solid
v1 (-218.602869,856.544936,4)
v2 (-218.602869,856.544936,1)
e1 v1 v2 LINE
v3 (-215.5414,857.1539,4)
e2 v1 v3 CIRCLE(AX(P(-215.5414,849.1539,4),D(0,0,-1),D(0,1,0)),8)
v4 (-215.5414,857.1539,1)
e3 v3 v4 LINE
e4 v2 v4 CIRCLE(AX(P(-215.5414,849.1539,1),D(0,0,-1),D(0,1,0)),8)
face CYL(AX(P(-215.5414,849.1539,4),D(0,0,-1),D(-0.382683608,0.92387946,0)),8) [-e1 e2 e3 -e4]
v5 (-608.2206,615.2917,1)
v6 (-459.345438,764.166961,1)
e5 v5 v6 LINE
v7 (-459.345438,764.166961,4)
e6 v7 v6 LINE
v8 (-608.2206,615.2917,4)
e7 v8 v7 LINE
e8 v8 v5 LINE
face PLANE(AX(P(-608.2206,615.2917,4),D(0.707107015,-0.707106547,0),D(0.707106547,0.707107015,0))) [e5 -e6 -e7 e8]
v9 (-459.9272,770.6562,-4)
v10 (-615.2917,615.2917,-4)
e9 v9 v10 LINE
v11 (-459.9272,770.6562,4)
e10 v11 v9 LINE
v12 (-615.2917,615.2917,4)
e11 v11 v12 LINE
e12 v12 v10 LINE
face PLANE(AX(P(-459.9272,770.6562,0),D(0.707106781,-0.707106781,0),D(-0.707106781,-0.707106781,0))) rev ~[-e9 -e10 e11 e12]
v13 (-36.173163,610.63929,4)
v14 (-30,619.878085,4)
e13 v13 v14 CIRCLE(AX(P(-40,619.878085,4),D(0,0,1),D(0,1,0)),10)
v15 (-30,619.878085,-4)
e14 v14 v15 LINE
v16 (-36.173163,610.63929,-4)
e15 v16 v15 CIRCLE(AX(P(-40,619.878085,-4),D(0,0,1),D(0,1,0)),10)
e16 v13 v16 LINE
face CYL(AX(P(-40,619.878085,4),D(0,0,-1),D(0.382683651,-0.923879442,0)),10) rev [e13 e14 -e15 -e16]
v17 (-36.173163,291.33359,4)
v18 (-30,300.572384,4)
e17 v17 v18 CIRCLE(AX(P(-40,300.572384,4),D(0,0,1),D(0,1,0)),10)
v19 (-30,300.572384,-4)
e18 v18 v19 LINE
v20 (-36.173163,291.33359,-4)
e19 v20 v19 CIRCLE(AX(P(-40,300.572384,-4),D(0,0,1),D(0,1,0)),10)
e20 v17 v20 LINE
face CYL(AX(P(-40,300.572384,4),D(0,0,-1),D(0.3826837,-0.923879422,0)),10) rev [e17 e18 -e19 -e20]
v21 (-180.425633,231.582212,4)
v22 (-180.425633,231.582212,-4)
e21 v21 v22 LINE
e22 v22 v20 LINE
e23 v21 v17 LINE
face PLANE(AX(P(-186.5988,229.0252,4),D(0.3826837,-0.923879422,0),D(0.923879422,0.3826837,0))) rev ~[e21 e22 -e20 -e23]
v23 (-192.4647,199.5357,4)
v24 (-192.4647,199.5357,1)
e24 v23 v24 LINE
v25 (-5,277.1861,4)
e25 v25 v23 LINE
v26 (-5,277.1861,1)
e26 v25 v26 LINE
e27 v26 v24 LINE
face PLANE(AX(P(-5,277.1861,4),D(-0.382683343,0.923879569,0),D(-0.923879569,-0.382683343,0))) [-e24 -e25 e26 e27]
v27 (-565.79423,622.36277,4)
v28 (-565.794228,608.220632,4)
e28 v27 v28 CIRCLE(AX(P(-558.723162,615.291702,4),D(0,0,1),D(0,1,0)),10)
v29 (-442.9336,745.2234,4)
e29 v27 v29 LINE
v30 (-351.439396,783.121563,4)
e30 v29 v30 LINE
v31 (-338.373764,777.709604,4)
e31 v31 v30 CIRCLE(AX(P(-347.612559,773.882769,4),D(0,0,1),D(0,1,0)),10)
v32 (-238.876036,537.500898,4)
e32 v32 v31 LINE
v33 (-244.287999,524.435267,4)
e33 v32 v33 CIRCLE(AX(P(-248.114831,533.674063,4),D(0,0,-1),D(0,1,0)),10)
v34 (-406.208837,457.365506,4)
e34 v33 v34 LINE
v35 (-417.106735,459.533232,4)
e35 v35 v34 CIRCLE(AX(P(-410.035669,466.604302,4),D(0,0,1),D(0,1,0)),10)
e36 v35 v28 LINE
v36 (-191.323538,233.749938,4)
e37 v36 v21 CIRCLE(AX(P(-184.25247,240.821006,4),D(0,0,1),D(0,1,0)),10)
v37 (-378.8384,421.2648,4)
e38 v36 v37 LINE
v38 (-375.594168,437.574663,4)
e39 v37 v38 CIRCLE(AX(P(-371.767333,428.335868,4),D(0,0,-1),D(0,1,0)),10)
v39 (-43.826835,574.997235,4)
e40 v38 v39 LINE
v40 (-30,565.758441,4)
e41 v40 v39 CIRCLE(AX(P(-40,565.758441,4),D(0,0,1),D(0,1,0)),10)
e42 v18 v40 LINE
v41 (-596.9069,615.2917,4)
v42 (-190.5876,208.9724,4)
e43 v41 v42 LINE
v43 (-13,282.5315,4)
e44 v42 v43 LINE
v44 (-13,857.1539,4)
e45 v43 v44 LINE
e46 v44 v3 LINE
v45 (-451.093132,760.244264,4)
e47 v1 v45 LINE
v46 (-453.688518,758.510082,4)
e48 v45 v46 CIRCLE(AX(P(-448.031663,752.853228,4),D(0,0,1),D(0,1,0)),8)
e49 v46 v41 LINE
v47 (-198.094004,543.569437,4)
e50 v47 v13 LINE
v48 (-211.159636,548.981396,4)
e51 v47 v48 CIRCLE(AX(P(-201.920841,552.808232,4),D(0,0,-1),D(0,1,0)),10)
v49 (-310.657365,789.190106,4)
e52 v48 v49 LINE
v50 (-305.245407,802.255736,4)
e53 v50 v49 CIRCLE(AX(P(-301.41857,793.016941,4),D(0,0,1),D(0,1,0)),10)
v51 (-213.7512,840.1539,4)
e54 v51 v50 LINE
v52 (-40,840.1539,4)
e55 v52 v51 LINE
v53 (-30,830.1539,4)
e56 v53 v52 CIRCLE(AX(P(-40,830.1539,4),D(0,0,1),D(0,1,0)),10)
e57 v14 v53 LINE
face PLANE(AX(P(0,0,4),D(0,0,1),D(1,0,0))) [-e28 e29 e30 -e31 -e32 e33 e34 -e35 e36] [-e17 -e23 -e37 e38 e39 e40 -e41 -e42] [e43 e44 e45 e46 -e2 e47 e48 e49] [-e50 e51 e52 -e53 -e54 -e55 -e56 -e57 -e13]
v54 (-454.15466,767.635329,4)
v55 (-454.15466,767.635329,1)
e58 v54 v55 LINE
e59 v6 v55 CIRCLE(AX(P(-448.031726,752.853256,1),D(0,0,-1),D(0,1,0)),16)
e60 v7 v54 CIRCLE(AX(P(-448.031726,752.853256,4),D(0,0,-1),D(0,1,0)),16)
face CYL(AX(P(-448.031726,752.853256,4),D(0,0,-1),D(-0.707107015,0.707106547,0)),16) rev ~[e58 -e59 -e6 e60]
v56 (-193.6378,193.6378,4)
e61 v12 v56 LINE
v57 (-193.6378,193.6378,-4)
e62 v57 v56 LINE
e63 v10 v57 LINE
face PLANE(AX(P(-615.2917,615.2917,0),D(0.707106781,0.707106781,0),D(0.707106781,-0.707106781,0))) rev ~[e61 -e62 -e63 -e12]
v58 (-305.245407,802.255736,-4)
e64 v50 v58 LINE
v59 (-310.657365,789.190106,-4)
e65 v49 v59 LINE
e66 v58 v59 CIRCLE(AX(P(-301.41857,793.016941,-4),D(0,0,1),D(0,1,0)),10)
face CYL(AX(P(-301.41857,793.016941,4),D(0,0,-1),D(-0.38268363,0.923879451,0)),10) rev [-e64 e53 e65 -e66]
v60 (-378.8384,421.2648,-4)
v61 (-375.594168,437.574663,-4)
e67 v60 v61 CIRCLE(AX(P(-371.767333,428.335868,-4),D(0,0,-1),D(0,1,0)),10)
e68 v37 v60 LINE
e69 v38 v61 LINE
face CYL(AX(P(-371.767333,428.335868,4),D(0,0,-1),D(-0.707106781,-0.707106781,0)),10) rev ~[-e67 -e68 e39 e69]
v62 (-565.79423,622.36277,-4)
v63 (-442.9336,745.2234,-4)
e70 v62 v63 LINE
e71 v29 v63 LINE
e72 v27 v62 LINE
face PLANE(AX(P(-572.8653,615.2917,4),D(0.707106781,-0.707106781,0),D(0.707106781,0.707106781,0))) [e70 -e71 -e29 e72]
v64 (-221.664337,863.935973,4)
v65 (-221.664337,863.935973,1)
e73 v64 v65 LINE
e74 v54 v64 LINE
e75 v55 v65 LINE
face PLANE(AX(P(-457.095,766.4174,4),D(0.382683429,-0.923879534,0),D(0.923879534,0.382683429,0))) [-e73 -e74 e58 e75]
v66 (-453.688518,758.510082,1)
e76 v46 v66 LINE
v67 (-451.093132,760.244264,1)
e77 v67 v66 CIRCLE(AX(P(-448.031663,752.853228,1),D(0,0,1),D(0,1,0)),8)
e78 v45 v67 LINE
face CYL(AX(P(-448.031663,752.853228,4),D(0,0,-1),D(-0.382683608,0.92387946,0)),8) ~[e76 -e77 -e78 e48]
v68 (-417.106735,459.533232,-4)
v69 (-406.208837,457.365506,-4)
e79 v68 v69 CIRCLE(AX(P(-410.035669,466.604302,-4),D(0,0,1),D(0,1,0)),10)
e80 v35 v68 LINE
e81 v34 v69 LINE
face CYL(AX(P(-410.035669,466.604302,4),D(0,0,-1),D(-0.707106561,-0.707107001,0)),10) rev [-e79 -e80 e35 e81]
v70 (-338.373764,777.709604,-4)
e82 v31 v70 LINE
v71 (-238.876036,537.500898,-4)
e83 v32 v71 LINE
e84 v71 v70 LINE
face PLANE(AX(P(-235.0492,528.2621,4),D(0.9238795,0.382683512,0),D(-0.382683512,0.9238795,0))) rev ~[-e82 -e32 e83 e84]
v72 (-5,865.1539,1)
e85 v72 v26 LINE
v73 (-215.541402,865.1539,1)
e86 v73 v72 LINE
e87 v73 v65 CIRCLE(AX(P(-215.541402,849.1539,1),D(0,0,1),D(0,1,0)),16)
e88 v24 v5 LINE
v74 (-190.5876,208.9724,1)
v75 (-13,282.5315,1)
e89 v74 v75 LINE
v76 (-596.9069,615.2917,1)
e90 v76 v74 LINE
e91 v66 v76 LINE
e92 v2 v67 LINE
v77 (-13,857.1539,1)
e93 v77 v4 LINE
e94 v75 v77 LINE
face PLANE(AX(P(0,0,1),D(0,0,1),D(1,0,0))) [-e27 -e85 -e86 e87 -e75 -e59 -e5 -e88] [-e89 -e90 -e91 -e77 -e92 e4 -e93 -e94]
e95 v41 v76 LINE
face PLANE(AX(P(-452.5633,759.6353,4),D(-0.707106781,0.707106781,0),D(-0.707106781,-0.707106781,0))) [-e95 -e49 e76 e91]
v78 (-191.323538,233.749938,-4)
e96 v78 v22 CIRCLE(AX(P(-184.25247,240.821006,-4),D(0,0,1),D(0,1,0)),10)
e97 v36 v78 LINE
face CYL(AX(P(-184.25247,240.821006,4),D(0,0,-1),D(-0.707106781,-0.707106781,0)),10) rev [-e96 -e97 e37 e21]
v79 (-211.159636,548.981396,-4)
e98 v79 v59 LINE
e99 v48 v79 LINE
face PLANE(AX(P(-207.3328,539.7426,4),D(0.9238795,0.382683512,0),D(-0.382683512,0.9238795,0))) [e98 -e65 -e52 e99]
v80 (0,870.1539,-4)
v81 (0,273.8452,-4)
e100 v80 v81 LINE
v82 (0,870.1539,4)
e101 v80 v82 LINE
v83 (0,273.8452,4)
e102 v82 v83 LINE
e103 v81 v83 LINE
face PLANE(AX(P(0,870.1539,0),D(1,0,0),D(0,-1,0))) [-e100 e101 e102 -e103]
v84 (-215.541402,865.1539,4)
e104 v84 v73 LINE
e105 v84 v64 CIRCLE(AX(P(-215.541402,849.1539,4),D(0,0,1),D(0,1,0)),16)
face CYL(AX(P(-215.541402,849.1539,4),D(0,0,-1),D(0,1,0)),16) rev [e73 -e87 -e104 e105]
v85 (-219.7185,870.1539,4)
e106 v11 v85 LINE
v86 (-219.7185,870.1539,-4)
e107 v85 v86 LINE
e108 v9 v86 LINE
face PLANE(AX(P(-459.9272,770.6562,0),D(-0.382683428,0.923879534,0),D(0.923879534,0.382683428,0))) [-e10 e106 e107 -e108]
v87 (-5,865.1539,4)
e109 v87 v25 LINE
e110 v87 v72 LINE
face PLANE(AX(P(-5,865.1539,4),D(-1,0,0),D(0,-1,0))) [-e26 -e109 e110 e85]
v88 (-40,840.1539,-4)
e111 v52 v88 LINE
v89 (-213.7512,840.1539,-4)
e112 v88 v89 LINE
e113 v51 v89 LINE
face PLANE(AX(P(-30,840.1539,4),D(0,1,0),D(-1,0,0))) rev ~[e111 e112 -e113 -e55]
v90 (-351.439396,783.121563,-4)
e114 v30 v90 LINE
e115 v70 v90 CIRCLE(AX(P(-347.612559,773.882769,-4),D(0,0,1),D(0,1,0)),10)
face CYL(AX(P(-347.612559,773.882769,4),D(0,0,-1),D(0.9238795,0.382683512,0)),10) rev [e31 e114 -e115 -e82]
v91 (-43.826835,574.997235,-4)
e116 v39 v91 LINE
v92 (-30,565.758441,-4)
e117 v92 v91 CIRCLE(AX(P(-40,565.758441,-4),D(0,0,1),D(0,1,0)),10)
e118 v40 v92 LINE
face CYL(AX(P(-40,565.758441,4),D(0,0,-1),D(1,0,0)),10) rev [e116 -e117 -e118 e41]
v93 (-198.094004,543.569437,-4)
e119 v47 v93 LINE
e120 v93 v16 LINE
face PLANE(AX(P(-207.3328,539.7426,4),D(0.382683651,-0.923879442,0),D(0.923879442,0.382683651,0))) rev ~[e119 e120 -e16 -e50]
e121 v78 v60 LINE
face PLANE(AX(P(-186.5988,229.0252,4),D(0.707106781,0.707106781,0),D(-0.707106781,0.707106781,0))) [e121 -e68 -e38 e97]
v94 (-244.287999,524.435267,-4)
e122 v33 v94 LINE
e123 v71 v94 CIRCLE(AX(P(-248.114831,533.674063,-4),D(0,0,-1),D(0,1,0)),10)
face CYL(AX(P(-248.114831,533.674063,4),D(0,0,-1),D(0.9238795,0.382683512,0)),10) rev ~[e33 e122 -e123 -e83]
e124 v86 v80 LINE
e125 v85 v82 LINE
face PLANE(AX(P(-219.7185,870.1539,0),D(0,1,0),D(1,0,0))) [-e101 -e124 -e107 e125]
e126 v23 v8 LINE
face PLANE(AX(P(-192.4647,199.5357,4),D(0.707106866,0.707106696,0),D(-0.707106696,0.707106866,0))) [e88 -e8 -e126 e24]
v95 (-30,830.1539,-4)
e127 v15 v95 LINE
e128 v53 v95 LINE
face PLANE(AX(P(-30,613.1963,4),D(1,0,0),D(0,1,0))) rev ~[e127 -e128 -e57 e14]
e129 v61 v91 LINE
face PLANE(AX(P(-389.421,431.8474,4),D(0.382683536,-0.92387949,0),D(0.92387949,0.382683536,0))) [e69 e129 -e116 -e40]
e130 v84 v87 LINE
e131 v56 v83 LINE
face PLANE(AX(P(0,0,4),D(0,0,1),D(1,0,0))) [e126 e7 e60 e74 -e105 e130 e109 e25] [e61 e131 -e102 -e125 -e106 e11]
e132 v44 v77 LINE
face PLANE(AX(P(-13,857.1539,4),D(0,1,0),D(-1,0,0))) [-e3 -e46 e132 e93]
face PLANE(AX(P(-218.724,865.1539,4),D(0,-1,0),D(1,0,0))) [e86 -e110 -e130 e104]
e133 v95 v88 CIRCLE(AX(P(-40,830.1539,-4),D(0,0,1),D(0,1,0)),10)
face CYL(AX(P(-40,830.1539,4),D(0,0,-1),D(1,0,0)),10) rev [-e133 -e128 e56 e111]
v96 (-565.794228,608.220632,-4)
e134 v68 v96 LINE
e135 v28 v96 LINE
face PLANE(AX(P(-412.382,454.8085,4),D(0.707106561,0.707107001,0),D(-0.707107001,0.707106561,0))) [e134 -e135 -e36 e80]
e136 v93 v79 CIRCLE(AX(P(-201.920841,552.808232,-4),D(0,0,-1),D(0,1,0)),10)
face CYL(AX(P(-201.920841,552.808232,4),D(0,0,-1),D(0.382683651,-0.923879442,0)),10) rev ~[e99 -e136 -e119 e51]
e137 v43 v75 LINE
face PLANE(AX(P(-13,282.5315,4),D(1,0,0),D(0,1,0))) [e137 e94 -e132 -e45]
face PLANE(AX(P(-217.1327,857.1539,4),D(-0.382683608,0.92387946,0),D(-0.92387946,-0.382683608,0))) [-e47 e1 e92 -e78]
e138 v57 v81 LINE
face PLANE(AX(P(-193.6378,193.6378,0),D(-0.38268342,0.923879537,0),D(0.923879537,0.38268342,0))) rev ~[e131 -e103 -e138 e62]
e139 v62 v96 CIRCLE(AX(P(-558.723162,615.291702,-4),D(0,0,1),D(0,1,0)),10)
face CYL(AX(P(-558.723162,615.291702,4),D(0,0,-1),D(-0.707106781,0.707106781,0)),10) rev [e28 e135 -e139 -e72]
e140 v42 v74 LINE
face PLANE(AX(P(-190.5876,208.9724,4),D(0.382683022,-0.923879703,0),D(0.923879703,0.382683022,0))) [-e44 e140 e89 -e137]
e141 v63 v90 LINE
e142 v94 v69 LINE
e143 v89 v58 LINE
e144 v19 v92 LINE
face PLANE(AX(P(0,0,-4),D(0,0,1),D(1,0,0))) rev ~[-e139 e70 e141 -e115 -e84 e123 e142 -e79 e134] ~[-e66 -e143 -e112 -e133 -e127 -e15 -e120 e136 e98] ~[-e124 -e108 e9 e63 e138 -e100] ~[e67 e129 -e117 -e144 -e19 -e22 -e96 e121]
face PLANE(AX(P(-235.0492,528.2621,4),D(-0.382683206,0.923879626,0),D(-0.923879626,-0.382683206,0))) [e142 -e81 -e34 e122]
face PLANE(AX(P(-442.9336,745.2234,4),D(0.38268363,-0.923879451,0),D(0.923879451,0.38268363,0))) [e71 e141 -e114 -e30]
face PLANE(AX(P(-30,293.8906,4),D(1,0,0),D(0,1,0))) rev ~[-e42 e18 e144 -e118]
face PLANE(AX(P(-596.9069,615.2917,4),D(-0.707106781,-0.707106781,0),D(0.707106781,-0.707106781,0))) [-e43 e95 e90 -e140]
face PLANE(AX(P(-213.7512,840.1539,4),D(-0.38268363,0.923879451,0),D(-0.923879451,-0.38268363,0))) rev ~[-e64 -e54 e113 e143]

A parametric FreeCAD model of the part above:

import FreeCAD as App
import Part
import Sketcher

V = App.Vector
Q = App.Units.Quantity


def edges_at(feature, points):
    """Names of the edges that pass closest to the given points."""
    edges = feature.Shape.Edges
    near = lambda p: min(range(len(edges)), key=lambda i: edges[i].distToShape(Part.Vertex(*p))[0])
    return sorted({f"Edge{near(p) + 1}" for p in points})


def add_polygon(sketch, points):
    """Adds a closed chain of lines whose ends are joined by coincident constraints."""
    first, n = sketch.GeometryCount, len(points)
    for a, b in zip(points, points[1:] + points[:1]):
        sketch.addGeometry(Part.LineSegment(App.Vector(*a, 0), App.Vector(*b, 0)), False)
    for i in range(n):
        sketch.addConstraint(Sketcher.Constraint("Coincident", first + i, 2, first + (i + 1) % n, 1))

doc = App.newDocument("Part")
body = doc.addObject("PartDesign::Body", "Body")

# Sketch on XY plane
sketch1 = doc.addObject("Sketcher::SketchObject", "Sketch")
body.addObject(sketch1)
sketch1.AttachmentSupport = (doc.XY_Plane, [""])
sketch1.MapMode = "FlatFace"
add_polygon(sketch1, [(-615, 615), (-194, 194), (0, 274), (0, 870), (-220, 870), (-460, 771)])  # lines 0-5
sketch1.addConstraint(Sketcher.Constraint("Vertical", 2))
sketch1.addConstraint(Sketcher.Constraint("Horizontal", 3))
sketch1.addConstraint(Sketcher.Constraint("PointOnObject", 1, 2, -2))
sketch1.addConstraint(Sketcher.Constraint("Parallel", 1, 4))
sketch1.addConstraint(Sketcher.Constraint("Perpendicular", 0, 5))
sketch1.addConstraint(Sketcher.Constraint("Distance", 4, Q("260 mm")))
sketch1.addConstraint(Sketcher.Constraint("Angle", 0, Q("-45 deg")))
sketch1.addConstraint(Sketcher.Constraint("Angle", 1, Q("22.5 deg")))
sketch1.addConstraint(Sketcher.Constraint("Distance", 1, Q("209.592 mm")))
sketch1.addConstraint(Sketcher.Constraint("DistanceX", 3, 2, 3, 1, Q("219.7185 mm")))
sketch1.addConstraint(Sketcher.Constraint("DistanceY", 2, 1, 2, 2, Q("596.3087 mm")))
sketch1.addConstraint(Sketcher.Constraint("DistanceY", -1, 1, 2, 2, Q("870.154 mm")))
pad1 = doc.addObject("PartDesign::Pad", "Pad")
body.addObject(pad1)
pad1.Profile = sketch1
pad1.Length = 8
pad1.Midplane = True

# Sketch on XY plane
sketch2 = doc.addObject("Sketcher::SketchObject", "Sketch001")
body.addObject(sketch2)
sketch2.AttachmentSupport = (doc.XY_Plane, [""])
sketch2.MapMode = "FlatFace"
sketch2.AttachmentOffset = App.Placement(V(0, 0, 4), App.Rotation())
add_polygon(sketch2, [(-412, 455), (-235, 528), (-342, 787), (-443, 745), (-573, 615)])  # lines 0-4
add_polygon(sketch2, [(-314, 798), (-207, 540), (-30, 613), (-30, 840), (-214, 840)])  # lines 5-9
add_polygon(sketch2, [(-30, 581), (-389, 432), (-187, 229), (-30, 294)])  # lines 10-13
sketch2.addConstraint(Sketcher.Constraint("Vertical", 7))
sketch2.addConstraint(Sketcher.Constraint("Horizontal", 8))
sketch2.addConstraint(Sketcher.Constraint("Vertical", 13))
sketch2.addConstraint(Sketcher.Constraint("Perpendicular", 0, 1))
sketch2.addConstraint(Sketcher.Constraint("Perpendicular", 1, 2))
sketch2.addConstraint(Sketcher.Constraint("Perpendicular", 3, 4))
sketch2.addConstraint(Sketcher.Constraint("Perpendicular", 2, 5))
sketch2.addConstraint(Sketcher.Constraint("Perpendicular", 5, 6))
sketch2.addConstraint(Sketcher.Constraint("Parallel", 6, 9))
sketch2.addConstraint(Sketcher.Constraint("Parallel", 9, 10))
sketch2.addConstraint(Sketcher.Constraint("Parallel", 4, 11))
sketch2.addConstraint(Sketcher.Constraint("Parallel", 10, 12))
sketch2.addConstraint(Sketcher.Constraint("Vertical", 7, 2, 12, 2))
sketch2.addConstraint(Sketcher.Constraint("Equal", 1, 5))
sketch2.addConstraint(Sketcher.Constraint("Equal", 0, 6))
sketch2.addConstraint(Sketcher.Constraint("Equal", 2, 9))
sketch2.addConstraint(Sketcher.Constraint("Distance", 1, Q("280 mm")))
sketch2.addConstraint(Sketcher.Constraint("DistanceX", 6, 2, -1, 1, Q("30 mm")))
sketch2.addConstraint(Sketcher.Constraint("Angle", 3, Q("-135 deg")))
sketch2.addConstraint(Sketcher.Constraint("Angle", 0, Q("22.5 deg")))
sketch2.addConstraint(Sketcher.Constraint("DistanceY", 13, 1, 13, 2, Q("286.834 mm")))
sketch2.addConstraint(Sketcher.Constraint("DistanceY", 4, 2, 1, 2, Q("332.14 mm")))
sketch2.addConstraint(Sketcher.Constraint("DistanceX", 8, 2, 8, 1, Q("183.7512 mm")))
sketch2.addConstraint(Sketcher.Constraint("DistanceY", -1, 1, 0, 2, Q("528.262 mm")))
sketch2.addConstraint(Sketcher.Constraint("DistanceX", 4, 2, -1, 1, Q("412.382 mm")))
sketch2.addConstraint(Sketcher.Constraint("DistanceY", -1, 1, 7, 2, Q("840.154 mm")))
sketch2.addConstraint(Sketcher.Constraint("DistanceX", 10, 2, -1, 1, Q("389.421 mm")))
sketch2.addConstraint(Sketcher.Constraint("DistanceY", 10, 2, 4, 2, Q("22.961 mm")))
pocket1 = doc.addObject("PartDesign::Pocket", "Pocket")
body.addObject(pocket1)
pocket1.Profile = sketch2
pocket1.Length = 8
doc.recompute()

fillet = doc.addObject("PartDesign::Fillet", "Fillet")
body.addObject(fillet)
fillet.Base = (pocket1, edges_at(pocket1, [
    (-572.865, 615.292, 0),
    (-342.201, 786.948, 0),
    (-235.049, 528.262, 0),
    (-412.382, 454.808, 0),
    (-314.484, 798.429, 0),
    (-30, 840.154, 0),
    (-30, 613.196, 0),
    (-207.333, 539.743, 0),
    (-389.421, 431.847, 0),
    (-30, 580.725, 0),
    (-30, 293.891, 0),
    (-186.599, 229.025, 0),
]))
fillet.Radius = 10

# Sketch on XY plane
sketch3 = doc.addObject("Sketcher::SketchObject", "Sketch002")
body.addObject(sketch3)
sketch3.AttachmentSupport = (doc.XY_Plane, [""])
sketch3.MapMode = "FlatFace"
sketch3.AttachmentOffset = App.Placement(V(0, 0, 4), App.Rotation())
add_polygon(sketch3, [(-219, 865), (-457, 766), (-608, 615), (-192, 200), (-5, 277), (-5, 865)])  # lines 0-5
add_polygon(sketch3, [(-453, 760), (-217, 857), (-13, 857), (-13, 283), (-191, 209), (-597, 615)])  # lines 6-11
sketch3.addConstraint(Sketcher.Constraint("Vertical", 4))
sketch3.addConstraint(Sketcher.Constraint("Horizontal", 5))
sketch3.addConstraint(Sketcher.Constraint("Horizontal", 7))
sketch3.addConstraint(Sketcher.Constraint("Vertical", 8))
sketch3.addConstraint(Sketcher.Constraint("Perpendicular", 1, 2))
sketch3.addConstraint(Sketcher.Constraint("Parallel", 0, 3))
sketch3.addConstraint(Sketcher.Constraint("Parallel", 3, 6))
sketch3.addConstraint(Sketcher.Constraint("Parallel", 6, 9))
sketch3.addConstraint(Sketcher.Constraint("Parallel", 2, 10))
sketch3.addConstraint(Sketcher.Constraint("Perpendicular", 10, 11))
sketch3.addConstraint(Sketcher.Constraint("Horizontal", 1, 2, 10, 2))
sketch3.addConstraint(Sketcher.Constraint("DistanceX", 3, 2, -1, 1, Q("5 mm")))
sketch3.addConstraint(Sketcher.Constraint("DistanceY", 6, 2, 5, 2, Q("8 mm")))
sketch3.addConstraint(Sketcher.Constraint("DistanceX", 7, 2, 4, 2, Q("8 mm")))
sketch3.addConstraint(Sketcher.Constraint("Angle", 1, Q("-135 deg")))
sketch3.addConstraint(Sketcher.Constraint("Angle", 0, Q("-157.5 deg")))
sketch3.addConstraint(Sketcher.Constraint("DistanceX", 5, 2, 5, 1, Q("213.724 mm")))
sketch3.addConstraint(Sketcher.Constraint("Distance", 0, Q("258.011 mm")))
sketch3.addConstraint(Sketcher.Constraint("Distance", 1, Q("213.724 mm")))
sketch3.addConstraint(Sketcher.Constraint("DistanceX", 7, 1, 7, 2, Q("204.1327 mm")))
sketch3.addConstraint(Sketcher.Constraint("DistanceY", 4, 1, 4, 2, Q("587.9678 mm")))
sketch3.addConstraint(Sketcher.Constraint("DistanceY", 8, 2, 8, 1, Q("574.6224 mm")))
sketch3.addConstraint(Sketcher.Constraint("DistanceY", -1, 1, 3, 2, Q("277.186 mm")))
sketch3.addConstraint(Sketcher.Constraint("DistanceX", 10, 2, -1, 1, Q("596.907 mm")))
pocket2 = doc.addObject("PartDesign::Pocket", "Pocket001")
body.addObject(pocket2)
pocket2.Profile = sketch3
pocket2.Length = 3
doc.recompute()

fillet2 = doc.addObject("PartDesign::Fillet", "Fillet001")
body.addObject(fillet2)
fillet2.Base = (pocket2, edges_at(pocket2, [(-218.724, 865.154, 2.5), (-457.095, 766.417, 2.5)]))
fillet2.Radius = 16
doc.recompute()

fillet3 = doc.addObject("PartDesign::Fillet", "Fillet002")
body.addObject(fillet3)
fillet3.Base = (fillet2, edges_at(fillet2, [(-452.563, 759.635, 2.5), (-217.133, 857.154, 2.5)]))
fillet3.Radius = 8

doc.recompute()
